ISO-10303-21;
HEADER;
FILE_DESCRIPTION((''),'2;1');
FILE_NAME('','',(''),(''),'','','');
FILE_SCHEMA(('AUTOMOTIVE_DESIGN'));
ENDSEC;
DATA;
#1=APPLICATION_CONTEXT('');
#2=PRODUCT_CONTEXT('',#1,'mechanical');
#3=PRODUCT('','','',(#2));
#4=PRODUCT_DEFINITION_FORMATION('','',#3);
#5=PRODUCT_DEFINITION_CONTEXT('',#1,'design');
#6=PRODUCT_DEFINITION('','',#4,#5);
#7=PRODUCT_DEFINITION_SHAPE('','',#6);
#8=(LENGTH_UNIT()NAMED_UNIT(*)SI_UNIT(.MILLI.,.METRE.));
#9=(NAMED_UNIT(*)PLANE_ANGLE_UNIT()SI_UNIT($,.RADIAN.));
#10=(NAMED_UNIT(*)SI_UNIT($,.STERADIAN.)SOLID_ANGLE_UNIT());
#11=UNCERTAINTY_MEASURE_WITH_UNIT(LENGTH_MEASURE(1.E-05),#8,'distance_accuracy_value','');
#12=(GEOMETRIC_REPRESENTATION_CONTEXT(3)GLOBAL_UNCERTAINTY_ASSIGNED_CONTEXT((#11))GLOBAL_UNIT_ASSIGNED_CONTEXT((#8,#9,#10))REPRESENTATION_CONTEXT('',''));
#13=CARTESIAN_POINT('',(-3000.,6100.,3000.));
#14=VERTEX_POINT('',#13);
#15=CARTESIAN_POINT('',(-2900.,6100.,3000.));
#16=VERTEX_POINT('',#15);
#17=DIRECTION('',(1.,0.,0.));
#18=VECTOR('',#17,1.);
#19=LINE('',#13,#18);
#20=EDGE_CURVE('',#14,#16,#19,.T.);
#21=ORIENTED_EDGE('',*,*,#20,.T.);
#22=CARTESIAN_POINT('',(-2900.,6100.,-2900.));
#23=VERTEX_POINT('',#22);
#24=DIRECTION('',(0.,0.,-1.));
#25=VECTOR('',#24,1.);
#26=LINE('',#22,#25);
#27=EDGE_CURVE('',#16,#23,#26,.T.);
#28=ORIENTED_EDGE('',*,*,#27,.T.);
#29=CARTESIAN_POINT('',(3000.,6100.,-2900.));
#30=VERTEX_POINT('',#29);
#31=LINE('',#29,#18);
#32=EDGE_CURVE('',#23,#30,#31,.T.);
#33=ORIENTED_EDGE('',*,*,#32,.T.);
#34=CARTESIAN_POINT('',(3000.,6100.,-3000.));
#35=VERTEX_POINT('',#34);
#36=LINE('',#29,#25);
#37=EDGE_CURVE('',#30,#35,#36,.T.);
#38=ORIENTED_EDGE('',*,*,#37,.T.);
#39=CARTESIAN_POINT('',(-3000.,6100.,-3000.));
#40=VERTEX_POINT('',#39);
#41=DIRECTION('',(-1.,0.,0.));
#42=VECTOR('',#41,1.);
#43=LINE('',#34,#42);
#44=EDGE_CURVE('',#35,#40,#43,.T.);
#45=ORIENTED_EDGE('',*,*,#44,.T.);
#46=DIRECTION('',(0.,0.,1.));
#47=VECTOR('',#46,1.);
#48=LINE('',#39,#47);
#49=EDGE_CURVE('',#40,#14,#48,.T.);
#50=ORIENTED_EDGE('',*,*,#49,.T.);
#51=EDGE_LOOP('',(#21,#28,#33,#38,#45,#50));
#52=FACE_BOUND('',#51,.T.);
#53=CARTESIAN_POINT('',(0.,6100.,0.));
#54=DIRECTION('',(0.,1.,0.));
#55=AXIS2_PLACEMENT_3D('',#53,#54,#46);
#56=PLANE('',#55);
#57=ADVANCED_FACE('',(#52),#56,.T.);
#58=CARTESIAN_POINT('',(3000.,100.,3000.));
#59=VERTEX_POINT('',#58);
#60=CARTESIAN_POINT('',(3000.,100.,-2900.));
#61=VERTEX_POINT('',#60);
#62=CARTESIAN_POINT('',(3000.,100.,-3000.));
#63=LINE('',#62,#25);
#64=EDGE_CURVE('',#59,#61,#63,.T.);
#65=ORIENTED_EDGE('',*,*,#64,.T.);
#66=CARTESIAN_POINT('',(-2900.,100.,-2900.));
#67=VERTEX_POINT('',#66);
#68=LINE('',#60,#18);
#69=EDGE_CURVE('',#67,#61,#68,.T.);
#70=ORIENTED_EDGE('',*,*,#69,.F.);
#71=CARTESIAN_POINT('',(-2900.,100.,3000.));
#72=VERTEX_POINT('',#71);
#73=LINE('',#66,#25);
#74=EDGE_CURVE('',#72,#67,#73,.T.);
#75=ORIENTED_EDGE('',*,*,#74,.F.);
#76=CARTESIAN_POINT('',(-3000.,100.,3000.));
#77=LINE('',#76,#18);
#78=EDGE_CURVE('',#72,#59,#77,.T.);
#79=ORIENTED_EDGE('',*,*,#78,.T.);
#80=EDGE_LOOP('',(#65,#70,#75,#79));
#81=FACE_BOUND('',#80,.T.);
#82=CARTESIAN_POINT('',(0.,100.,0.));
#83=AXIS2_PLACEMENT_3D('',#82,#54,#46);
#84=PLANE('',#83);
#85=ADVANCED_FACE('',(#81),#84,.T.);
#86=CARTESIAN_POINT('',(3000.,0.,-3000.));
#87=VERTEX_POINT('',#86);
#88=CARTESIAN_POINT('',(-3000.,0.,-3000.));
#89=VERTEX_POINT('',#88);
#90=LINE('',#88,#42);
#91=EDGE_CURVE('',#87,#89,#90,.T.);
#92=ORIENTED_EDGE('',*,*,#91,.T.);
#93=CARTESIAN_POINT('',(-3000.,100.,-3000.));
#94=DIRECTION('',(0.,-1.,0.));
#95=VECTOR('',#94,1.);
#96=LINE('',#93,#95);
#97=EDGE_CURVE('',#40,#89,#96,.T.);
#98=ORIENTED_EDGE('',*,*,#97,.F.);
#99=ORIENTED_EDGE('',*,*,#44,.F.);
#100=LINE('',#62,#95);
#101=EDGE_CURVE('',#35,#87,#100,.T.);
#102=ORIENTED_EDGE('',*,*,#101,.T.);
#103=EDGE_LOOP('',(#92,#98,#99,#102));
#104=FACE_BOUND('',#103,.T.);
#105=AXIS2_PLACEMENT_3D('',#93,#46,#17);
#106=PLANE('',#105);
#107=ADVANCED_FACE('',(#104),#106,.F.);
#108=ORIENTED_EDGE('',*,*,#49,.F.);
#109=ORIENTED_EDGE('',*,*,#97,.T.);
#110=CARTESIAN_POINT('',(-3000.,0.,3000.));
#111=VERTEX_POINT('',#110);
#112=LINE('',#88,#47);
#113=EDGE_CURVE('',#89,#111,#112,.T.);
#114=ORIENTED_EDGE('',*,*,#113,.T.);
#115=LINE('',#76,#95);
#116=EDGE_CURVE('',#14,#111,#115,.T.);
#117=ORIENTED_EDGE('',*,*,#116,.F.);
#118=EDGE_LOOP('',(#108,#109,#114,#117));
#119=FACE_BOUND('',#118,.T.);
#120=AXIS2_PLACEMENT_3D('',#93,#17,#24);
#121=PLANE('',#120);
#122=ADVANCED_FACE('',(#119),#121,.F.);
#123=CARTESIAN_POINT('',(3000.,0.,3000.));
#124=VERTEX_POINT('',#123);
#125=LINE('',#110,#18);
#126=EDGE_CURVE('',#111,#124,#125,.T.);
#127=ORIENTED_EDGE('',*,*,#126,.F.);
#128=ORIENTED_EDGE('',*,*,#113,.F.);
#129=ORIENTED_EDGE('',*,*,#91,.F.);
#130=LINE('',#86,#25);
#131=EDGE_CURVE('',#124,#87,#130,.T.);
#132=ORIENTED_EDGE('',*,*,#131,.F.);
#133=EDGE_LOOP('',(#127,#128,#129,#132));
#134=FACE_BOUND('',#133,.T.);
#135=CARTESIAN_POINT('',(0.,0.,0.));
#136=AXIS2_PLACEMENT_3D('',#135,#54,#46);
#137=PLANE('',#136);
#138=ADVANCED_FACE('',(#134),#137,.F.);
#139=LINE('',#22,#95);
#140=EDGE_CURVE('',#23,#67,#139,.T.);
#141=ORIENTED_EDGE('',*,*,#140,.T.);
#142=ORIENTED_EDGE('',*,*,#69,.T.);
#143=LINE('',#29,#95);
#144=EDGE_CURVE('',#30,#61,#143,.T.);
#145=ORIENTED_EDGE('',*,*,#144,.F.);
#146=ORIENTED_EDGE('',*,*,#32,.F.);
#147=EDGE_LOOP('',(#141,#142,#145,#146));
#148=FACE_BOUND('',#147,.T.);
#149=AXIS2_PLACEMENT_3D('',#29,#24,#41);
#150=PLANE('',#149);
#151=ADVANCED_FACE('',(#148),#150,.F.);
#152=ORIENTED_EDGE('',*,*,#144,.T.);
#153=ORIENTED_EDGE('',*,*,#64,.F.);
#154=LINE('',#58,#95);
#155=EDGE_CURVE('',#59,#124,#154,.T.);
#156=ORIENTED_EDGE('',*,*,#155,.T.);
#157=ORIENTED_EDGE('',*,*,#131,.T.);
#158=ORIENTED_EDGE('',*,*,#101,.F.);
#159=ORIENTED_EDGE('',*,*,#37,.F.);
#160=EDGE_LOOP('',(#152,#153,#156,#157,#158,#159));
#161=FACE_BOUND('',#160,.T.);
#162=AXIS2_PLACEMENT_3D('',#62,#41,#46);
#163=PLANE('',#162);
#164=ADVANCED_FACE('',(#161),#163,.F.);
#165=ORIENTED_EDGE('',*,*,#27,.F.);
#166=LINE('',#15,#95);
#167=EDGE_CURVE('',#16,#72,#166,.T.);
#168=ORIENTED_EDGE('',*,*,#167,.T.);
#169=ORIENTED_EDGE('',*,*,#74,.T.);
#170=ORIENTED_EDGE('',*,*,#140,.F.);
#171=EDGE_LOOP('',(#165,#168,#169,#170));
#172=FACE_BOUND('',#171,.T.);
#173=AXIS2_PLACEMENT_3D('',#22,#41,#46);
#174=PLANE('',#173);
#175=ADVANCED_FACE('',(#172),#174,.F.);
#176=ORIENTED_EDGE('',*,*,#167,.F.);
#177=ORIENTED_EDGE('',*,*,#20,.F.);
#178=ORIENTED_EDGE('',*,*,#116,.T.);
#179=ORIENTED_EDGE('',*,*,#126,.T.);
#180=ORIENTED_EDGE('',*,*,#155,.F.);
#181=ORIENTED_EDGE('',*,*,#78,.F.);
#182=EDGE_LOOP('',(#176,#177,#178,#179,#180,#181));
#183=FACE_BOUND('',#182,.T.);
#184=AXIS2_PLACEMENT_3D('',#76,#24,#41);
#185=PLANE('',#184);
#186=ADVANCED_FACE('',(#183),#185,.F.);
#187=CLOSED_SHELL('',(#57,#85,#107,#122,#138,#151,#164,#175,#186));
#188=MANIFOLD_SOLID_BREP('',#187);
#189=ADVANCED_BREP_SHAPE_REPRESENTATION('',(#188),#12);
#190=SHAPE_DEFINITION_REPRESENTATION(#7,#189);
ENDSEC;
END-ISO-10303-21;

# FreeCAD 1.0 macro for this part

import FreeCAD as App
import Part
import Sketcher
from FreeCAD import Vector

doc = App.newDocument("Part")
params = doc.addObject("Spreadsheet::Sheet", "Params")
for row, (alias, value) in enumerate([
    ("sketch1_width", "6000 mm"),
    ("pad1_length", "100 mm"),
    ("sketch2_width", "5900 mm"),
    ("sketch2_width2", "6000 mm"),
    ("pad2_length", "6000 mm"),
], start=1):
    params.set(f"A{row}", alias)
    params.set(f"B{row}", "=" + value)
    params.setAlias(f"B{row}", alias)

body = doc.addObject("PartDesign::Body", "Body")

sketch1 = body.newObject("Sketcher::SketchObject", "Sketch")
sketch1.AttachmentSupport = (doc.getObject("XZ_Plane"), [""])
sketch1.MapMode = "FlatFace"
sketch1.addGeometry([
    Part.LineSegment(Vector(-3000, -3000, 0), Vector(-3000, 3000, 0)),
    Part.LineSegment(Vector(-3000, 3000, 0), Vector(3000, 3000, 0)),
    Part.LineSegment(Vector(3000, 3000, 0), Vector(3000, -3000, 0)),
    Part.LineSegment(Vector(3000, -3000, 0), Vector(-3000, -3000, 0)),
], False)
sketch1.addConstraint([
    Sketcher.Constraint("Coincident", 0, 2, 1, 1),
    Sketcher.Constraint("Coincident", 1, 2, 2, 1),
    Sketcher.Constraint("Coincident", 2, 2, 3, 1),
    Sketcher.Constraint("Coincident", 3, 2, 0, 1),
    Sketcher.Constraint("Vertical", 0),
    Sketcher.Constraint("Horizontal", 1),
    Sketcher.Constraint("Vertical", 2),
    Sketcher.Constraint("Horizontal", 3),
    Sketcher.Constraint("Symmetric", 0, 2, 2, 2, -1, 1),
    Sketcher.Constraint("Equal", 3, 0),
    Sketcher.Constraint("DistanceX", 1, 1, 1, 2, 6000.0),
])
sketch1.setExpression("Constraints[10]", "Params.sketch1_width")
pad1 = body.newObject("PartDesign::Pad", "Pad")
pad1.Profile = sketch1
pad1.setExpression("Length", "Params.pad1_length")
pad1.Reversed = True

sketch2 = body.newObject("Sketcher::SketchObject", "Sketch001")
sketch2.AttachmentSupport = (doc.getObject("XZ_Plane"), [""])
sketch2.MapMode = "FlatFace"
sketch2.AttachmentOffset = App.Placement(Vector(0, 0, -100), App.Rotation())
sketch2.addGeometry([
    Part.LineSegment(Vector(-2900, -2900, 0), Vector(3000, -2900, 0)),
    Part.LineSegment(Vector(3000, -2900, 0), Vector(3000, -3000, 0)),
    Part.LineSegment(Vector(3000, -3000, 0), Vector(-3000, -3000, 0)),
    Part.LineSegment(Vector(-3000, -3000, 0), Vector(-3000, 3000, 0)),
    Part.LineSegment(Vector(-3000, 3000, 0), Vector(-2900, 3000, 0)),
    Part.LineSegment(Vector(-2900, 3000, 0), Vector(-2900, -2900, 0)),
], False)
sketch2.addConstraint([
    Sketcher.Constraint("Coincident", 0, 2, 1, 1),
    Sketcher.Constraint("Coincident", 1, 2, 2, 1),
    Sketcher.Constraint("Coincident", 2, 2, 3, 1),
    Sketcher.Constraint("Coincident", 3, 2, 4, 1),
    Sketcher.Constraint("Coincident", 4, 2, 5, 1),
    Sketcher.Constraint("Coincident", 5, 2, 0, 1),
    Sketcher.Constraint("Horizontal", 0),
    Sketcher.Constraint("Vertical", 1),
    Sketcher.Constraint("Horizontal", 2),
    Sketcher.Constraint("Vertical", 3),
    Sketcher.Constraint("Horizontal", 4),
    Sketcher.Constraint("Vertical", 5),
    Sketcher.Constraint("Symmetric", 1, 2, 3, 2, -1, 1),
    Sketcher.Constraint("Equal", 4, 1),
    Sketcher.Constraint("Equal", 2, 3),
    Sketcher.Constraint("DistanceX", 0, 1, 0, 2, 5900.0),
    Sketcher.Constraint("DistanceX", 2, 2, 2, 1, 6000.0),
])
sketch2.setExpression("Constraints[15]", "Params.sketch2_width")
sketch2.setExpression("Constraints[16]", "Params.sketch2_width2")
pad2 = body.newObject("PartDesign::Pad", "Pad001")
pad2.Profile = sketch2
pad2.setExpression("Length", "Params.pad2_length")
pad2.Reversed = True

doc.recompute()
